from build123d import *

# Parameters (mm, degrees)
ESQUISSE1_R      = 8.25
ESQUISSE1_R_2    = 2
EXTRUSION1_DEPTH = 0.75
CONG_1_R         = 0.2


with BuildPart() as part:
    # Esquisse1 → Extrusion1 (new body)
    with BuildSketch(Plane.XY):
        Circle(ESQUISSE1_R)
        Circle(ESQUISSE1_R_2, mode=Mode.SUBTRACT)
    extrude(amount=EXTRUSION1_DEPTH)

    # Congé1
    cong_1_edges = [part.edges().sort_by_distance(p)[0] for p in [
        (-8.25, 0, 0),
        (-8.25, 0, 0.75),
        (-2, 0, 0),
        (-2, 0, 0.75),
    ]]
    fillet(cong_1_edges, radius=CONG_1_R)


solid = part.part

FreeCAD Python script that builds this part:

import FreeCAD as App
import Part
import Sketcher
from FreeCAD import Vector
Q = App.Units.Quantity


def edges_at(feature, points):
    """Names of the edges that pass closest to the given points."""
    edges = feature.Shape.Edges
    near = lambda p: min(range(len(edges)), key=lambda i: edges[i].distToShape(Part.Vertex(*p))[0])
    return sorted({f"Edge{near(p) + 1}" for p in points})

doc = App.newDocument("Part")
body = doc.addObject("PartDesign::Body", "Body")

sketch1 = doc.addObject("Sketcher::SketchObject", "Sketch")
body.addObject(sketch1)
sketch1.AttachmentSupport = (doc.XY_Plane, [""])
sketch1.MapMode = "FlatFace"
sketch1.addGeometry([
    Part.Circle(Vector(0, 0, 0), Vector(0, 0, 1), 8.2),
    Part.Circle(Vector(0, 0, 0), Vector(0, 0, 1), 2),
], False)
sketch1.addConstraint([
    Sketcher.Constraint("Coincident", 0, 3, -1, 1),
    Sketcher.Constraint("Coincident", 1, 3, -1, 1),
    Sketcher.Constraint("Diameter", 1, Q("4 mm")),
    Sketcher.Constraint("Diameter", 0, Q("16.5 mm")),
])
pad1 = doc.addObject("PartDesign::Pad", "Pad")
body.addObject(pad1)
pad1.Profile = sketch1
pad1.Length = 0.75
doc.recompute()

fillet = doc.addObject("PartDesign::Fillet", "Fillet")
body.addObject(fillet)
fillet.Base = (pad1, edges_at(pad1, [
    (-8.25, 0, 0),
    (-8.25, 0, 0.75),
    (-2, 0, 0),
    (-2, 0, 0.75),
]))
fillet.Radius = 0.2

doc.recompute()
